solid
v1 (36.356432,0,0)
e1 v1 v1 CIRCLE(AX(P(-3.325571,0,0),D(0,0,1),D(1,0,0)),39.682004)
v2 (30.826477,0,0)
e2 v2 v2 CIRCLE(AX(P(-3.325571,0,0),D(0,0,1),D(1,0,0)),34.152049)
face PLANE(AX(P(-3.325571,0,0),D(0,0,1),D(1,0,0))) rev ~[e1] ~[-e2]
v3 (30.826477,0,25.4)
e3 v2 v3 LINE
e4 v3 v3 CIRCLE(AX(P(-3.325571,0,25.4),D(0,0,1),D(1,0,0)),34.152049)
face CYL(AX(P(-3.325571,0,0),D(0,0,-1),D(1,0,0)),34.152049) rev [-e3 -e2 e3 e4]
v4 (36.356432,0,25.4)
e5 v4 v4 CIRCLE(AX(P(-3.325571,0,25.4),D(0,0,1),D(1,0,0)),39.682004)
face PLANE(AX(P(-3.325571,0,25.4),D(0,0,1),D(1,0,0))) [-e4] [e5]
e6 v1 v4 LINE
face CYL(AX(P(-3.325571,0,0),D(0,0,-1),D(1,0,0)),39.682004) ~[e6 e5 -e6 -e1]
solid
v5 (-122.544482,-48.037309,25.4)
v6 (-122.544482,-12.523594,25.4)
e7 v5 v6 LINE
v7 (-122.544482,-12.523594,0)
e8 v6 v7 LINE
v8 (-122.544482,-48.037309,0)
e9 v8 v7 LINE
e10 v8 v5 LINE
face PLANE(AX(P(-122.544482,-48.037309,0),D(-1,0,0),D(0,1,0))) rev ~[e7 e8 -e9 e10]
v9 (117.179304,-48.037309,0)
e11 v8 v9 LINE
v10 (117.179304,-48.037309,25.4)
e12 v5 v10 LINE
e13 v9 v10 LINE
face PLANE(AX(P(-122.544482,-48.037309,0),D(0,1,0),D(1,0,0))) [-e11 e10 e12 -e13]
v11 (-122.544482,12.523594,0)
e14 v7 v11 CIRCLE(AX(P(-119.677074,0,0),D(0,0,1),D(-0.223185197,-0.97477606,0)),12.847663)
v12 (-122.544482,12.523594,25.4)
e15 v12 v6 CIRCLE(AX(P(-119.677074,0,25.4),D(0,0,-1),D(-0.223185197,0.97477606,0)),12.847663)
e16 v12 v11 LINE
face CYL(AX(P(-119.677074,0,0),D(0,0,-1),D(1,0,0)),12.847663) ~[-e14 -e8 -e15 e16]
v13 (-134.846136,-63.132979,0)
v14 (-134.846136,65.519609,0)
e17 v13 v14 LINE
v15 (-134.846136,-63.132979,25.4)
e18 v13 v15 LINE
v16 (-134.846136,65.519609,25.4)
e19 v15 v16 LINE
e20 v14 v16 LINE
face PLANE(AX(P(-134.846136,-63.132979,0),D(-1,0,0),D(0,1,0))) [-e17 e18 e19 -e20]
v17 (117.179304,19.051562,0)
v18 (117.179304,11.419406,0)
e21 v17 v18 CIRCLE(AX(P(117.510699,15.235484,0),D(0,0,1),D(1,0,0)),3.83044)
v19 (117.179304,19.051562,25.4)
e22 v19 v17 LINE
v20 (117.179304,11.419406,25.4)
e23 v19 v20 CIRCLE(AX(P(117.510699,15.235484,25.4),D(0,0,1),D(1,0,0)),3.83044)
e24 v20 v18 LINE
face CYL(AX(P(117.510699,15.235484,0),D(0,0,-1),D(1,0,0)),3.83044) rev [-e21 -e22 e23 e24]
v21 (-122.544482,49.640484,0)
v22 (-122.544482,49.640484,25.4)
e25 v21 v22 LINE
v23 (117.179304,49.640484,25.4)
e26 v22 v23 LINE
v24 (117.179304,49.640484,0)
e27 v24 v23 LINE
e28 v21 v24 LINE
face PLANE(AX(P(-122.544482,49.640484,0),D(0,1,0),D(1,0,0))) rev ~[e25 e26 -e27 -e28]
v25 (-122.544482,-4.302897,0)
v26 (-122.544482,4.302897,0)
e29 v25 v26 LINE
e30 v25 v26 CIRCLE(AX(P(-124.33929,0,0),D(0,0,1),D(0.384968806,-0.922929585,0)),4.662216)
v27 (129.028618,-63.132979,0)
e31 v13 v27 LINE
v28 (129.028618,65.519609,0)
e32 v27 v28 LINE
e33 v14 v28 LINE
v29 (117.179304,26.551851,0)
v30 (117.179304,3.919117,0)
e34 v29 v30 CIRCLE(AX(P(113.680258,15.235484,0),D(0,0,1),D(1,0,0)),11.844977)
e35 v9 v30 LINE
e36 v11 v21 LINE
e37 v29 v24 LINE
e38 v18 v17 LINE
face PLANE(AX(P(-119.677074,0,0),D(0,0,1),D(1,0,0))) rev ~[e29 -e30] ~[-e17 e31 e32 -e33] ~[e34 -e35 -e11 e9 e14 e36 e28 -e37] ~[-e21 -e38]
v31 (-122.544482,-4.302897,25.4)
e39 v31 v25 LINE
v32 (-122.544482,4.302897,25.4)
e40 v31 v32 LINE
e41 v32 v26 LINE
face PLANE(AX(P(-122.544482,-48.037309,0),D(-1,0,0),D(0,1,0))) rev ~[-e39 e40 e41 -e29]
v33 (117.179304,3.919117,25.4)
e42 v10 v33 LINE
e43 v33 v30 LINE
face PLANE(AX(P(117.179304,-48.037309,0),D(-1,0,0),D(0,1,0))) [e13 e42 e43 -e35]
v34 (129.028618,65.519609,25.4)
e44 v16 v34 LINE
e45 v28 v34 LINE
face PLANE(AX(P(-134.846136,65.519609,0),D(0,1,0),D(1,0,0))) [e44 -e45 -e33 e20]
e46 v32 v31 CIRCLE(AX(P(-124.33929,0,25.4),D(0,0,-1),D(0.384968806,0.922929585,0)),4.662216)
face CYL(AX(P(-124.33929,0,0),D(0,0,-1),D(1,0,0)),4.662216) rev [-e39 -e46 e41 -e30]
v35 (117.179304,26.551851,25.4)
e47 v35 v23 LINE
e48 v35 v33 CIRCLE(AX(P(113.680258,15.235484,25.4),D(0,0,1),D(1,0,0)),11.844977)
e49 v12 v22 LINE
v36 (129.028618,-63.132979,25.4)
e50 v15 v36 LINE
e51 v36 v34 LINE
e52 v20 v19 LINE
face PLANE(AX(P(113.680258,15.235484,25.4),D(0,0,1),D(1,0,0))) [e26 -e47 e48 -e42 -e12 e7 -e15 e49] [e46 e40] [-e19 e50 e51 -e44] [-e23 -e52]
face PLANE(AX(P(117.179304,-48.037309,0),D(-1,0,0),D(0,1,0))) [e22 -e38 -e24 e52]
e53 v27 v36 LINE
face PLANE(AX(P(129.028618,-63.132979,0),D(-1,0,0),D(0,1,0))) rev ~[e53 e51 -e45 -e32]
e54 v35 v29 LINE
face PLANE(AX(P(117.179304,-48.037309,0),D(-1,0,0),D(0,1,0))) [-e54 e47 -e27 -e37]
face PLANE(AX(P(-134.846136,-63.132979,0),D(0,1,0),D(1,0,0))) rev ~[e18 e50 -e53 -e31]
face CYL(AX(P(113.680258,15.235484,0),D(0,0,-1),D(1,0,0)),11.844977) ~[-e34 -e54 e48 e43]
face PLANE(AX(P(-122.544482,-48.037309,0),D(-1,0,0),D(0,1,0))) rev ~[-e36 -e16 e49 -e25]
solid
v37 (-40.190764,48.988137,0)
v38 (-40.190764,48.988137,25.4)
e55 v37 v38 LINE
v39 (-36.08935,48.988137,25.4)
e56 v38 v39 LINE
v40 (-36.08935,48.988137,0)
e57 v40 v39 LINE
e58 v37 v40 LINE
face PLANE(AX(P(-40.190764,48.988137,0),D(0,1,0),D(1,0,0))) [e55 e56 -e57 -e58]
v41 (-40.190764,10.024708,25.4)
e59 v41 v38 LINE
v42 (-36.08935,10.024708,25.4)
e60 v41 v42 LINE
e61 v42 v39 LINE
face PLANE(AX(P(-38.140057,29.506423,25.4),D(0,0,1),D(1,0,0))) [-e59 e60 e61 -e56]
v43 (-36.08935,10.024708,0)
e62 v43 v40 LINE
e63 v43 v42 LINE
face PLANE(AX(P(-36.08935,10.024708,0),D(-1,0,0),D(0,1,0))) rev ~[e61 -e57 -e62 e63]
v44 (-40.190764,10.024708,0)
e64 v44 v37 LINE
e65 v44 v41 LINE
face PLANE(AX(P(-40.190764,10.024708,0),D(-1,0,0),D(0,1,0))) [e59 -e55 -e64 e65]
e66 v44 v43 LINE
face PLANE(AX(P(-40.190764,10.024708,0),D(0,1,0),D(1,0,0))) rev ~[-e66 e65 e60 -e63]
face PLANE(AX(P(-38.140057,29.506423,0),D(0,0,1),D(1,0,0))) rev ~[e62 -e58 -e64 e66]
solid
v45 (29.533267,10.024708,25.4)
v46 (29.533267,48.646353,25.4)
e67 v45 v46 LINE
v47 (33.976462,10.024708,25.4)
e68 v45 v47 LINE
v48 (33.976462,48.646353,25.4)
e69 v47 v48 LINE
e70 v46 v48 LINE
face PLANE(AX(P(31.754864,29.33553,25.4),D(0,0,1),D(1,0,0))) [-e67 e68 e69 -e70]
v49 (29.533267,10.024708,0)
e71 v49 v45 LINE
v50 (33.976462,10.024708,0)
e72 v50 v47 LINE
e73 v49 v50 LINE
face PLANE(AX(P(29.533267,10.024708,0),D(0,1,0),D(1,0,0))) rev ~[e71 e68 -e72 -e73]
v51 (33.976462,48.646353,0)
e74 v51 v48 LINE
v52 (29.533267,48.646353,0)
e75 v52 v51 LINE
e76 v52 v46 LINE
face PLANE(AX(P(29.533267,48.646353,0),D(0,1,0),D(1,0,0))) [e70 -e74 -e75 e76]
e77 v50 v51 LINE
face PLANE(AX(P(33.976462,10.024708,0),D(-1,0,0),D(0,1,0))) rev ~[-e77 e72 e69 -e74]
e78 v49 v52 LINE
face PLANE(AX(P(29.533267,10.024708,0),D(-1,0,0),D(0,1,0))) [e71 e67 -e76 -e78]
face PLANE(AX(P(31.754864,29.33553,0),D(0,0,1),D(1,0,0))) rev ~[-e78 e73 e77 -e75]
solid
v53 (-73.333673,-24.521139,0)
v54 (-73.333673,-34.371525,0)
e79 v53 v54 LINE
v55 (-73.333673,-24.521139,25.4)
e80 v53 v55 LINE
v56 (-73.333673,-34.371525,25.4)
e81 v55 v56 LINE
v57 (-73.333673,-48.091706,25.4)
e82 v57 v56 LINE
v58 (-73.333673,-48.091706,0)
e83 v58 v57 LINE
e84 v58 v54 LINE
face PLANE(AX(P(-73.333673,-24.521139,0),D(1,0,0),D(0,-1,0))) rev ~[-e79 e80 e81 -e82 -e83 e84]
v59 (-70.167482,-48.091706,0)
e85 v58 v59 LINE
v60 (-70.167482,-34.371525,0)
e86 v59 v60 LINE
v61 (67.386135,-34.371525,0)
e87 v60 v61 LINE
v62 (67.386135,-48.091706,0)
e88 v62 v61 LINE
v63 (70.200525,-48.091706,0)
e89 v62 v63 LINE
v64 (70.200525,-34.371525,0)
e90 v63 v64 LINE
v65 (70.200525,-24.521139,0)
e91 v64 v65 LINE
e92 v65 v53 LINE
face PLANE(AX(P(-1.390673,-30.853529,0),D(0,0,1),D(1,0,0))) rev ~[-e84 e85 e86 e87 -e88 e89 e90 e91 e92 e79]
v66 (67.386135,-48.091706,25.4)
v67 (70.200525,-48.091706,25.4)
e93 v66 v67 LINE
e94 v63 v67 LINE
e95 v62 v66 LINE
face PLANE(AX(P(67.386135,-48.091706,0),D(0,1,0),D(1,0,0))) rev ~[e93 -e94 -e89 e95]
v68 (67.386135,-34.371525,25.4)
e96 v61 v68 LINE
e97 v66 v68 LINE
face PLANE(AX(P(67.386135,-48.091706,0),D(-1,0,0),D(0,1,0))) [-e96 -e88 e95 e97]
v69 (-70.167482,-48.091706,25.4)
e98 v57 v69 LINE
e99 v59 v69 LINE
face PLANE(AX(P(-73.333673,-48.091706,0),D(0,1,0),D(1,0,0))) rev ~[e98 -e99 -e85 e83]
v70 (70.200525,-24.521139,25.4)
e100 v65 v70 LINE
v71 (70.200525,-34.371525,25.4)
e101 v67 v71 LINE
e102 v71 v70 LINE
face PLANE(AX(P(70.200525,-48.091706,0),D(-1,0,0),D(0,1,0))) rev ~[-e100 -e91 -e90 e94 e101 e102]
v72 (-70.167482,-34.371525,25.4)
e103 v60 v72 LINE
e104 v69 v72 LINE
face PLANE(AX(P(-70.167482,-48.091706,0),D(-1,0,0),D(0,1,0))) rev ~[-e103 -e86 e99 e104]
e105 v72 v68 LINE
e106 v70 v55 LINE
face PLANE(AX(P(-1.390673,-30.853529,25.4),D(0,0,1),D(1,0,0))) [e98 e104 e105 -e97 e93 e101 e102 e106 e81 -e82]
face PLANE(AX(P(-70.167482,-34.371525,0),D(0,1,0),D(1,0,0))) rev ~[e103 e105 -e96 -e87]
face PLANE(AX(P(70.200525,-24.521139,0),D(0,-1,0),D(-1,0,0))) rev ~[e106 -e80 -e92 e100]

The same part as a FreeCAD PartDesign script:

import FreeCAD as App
import Part
import Sketcher

V = App.Vector
Q = App.Units.Quantity


def add_polygon(sketch, points):
    """Adds a closed chain of lines whose ends are joined by coincident constraints."""
    first, n = sketch.GeometryCount, len(points)
    for a, b in zip(points, points[1:] + points[:1]):
        sketch.addGeometry(Part.LineSegment(App.Vector(*a, 0), App.Vector(*b, 0)), False)
    for i in range(n):
        sketch.addConstraint(Sketcher.Constraint("Coincident", first + i, 2, first + (i + 1) % n, 1))

doc = App.newDocument("Part")
body = doc.addObject("PartDesign::Body", "Body")

sketch1 = doc.addObject("Sketcher::SketchObject", "Sketch")
body.addObject(sketch1)
sketch1.AttachmentSupport = (doc.XY_Plane, [""])
sketch1.MapMode = "FlatFace"
add_polygon(sketch1, [(-134.846136, 65.519609), (-134.846136, -63.132979), (129.028618, -63.132979), (129.028618, 65.519609)])
add_polygon(sketch1, [(117.179304, -48.037309), (-122.544482, -48.037309), (-122.544482, 49.640484), (117.179304, 49.640484)])
sketch1.addConstraint(Sketcher.Constraint("Vertical", 0))
sketch1.addConstraint(Sketcher.Constraint("Horizontal", 1))
sketch1.addConstraint(Sketcher.Constraint("Vertical", 2))
sketch1.addConstraint(Sketcher.Constraint("Horizontal", 3))
sketch1.addConstraint(Sketcher.Constraint("Horizontal", 4))
sketch1.addConstraint(Sketcher.Constraint("Vertical", 5))
sketch1.addConstraint(Sketcher.Constraint("Horizontal", 6))
sketch1.addConstraint(Sketcher.Constraint("Vertical", 7))
sketch1.addConstraint(Sketcher.Constraint("DistanceY", 0, 2, 5, 2, Q("4.4399001 in")))
sketch1.addConstraint(Sketcher.Constraint("DistanceX", 4, 2, 1, 2, 251.573101))
sketch1.addConstraint(Sketcher.Constraint("DistanceX", 1, 1, 1, 2, 263.874754))
sketch1.addConstraint(Sketcher.Constraint("DistanceX", 4, 2, 4, 1, 239.723787))
sketch1.addConstraint(Sketcher.Constraint("DistanceY", 0, 2, 0, 1, 128.652588))
sketch1.addConstraint(Sketcher.Constraint("DistanceY", 5, 1, 5, 2, 97.677793))
sketch1.addConstraint(Sketcher.Constraint("DistanceY", 0, 2, -1, 1, 63.132979))
sketch1.addConstraint(Sketcher.Constraint("DistanceX", -1, 1, 1, 2, 129.028618))
pad1 = doc.addObject("PartDesign::Pad", "Pad")
body.addObject(pad1)
pad1.Profile = sketch1
pad1.Length = Q("1 in")

sketch2 = doc.addObject("Sketcher::SketchObject", "Sketch001")
body.addObject(sketch2)
sketch2.AttachmentSupport = (doc.XY_Plane, [""])
sketch2.MapMode = "FlatFace"
sketch2.addGeometry(Part.Circle(V(-119.677074, 0, 0), V(0, 0, 1), 12.847663), False)
sketch2.addGeometry(Part.Circle(V(-124.33929, 0, 0), V(0, 0, 1), 4.662216), False)
sketch2.addConstraint(Sketcher.Constraint("PointOnObject", 0, 3, -1))
sketch2.addConstraint(Sketcher.Constraint("PointOnObject", 1, 3, -1))
sketch2.addConstraint(Sketcher.Constraint("Diameter", 1, 9.324431))
sketch2.addConstraint(Sketcher.Constraint("Diameter", 0, 25.695325))
sketch2.addConstraint(Sketcher.Constraint("DistanceX", 1, 3, -1, 1, 124.33929))
sketch2.addConstraint(Sketcher.Constraint("DistanceX", 0, 3, -1, 1, 119.677074))
pad2 = doc.addObject("PartDesign::Pad", "Pad001")
body.addObject(pad2)
pad2.Profile = sketch2
pad2.Length = Q("1 in")

sketch3 = doc.addObject("Sketcher::SketchObject", "Sketch002")
body.addObject(sketch3)
sketch3.AttachmentSupport = (doc.XY_Plane, [""])
sketch3.MapMode = "FlatFace"
sketch3.addGeometry(Part.Circle(V(113.680258, 15.235484, 0), V(0, 0, 1), 11.844977), False)
sketch3.addGeometry(Part.Circle(V(117.510699, 15.235484, 0), V(0, 0, 1), 3.83044), False)
sketch3.addConstraint(Sketcher.Constraint("Horizontal", 0, 3, 1, 3))
sketch3.addConstraint(Sketcher.Constraint("Diameter", 1, 7.660881))
sketch3.addConstraint(Sketcher.Constraint("Diameter", 0, 23.689955))
sketch3.addConstraint(Sketcher.Constraint("DistanceX", -1, 1, 1, 3, 117.510699))
sketch3.addConstraint(Sketcher.Constraint("DistanceX", -1, 1, 0, 3, 113.680258))
sketch3.addConstraint(Sketcher.Constraint("DistanceY", -1, 1, 0, 3, 15.235484))
pad3 = doc.addObject("PartDesign::Pad", "Pad002")
body.addObject(pad3)
pad3.Profile = sketch3
pad3.Length = Q("1 in")
body2 = doc.addObject("PartDesign::Body", "Body001")

sketch4 = doc.addObject("Sketcher::SketchObject", "Sketch003")
body2.addObject(sketch4)
sketch4.AttachmentSupport = (doc.getObject("XY_Plane001"), [""])
sketch4.MapMode = "FlatFace"
add_polygon(sketch4, [(-40.190764, 48.988137), (-40.190764, 10.024708), (-36.08935, 10.024708), (-36.08935, 48.988137)])
sketch4.addConstraint(Sketcher.Constraint("Vertical", 0))
sketch4.addConstraint(Sketcher.Constraint("Horizontal", 1))
sketch4.addConstraint(Sketcher.Constraint("Vertical", 2))
sketch4.addConstraint(Sketcher.Constraint("Horizontal", 3))
sketch4.addConstraint(Sketcher.Constraint("DistanceY", 0, 2, 0, 1, 38.96343))
sketch4.addConstraint(Sketcher.Constraint("DistanceX", 1, 1, 1, 2, 4.101414))
sketch4.addConstraint(Sketcher.Constraint("DistanceX", 1, 2, -1, 1, 36.08935))
sketch4.addConstraint(Sketcher.Constraint("DistanceY", -1, 1, 0, 2, 10.024708))
pad4 = doc.addObject("PartDesign::Pad", "Pad003")
body2.addObject(pad4)
pad4.Profile = sketch4
pad4.Length = Q("1 in")
body3 = doc.addObject("PartDesign::Body", "Body002")

sketch5 = doc.addObject("Sketcher::SketchObject", "Sketch004")
body3.addObject(sketch5)
sketch5.AttachmentSupport = (doc.getObject("XY_Plane002"), [""])
sketch5.MapMode = "FlatFace"
add_polygon(sketch5, [(29.533267, 48.646353), (29.533267, 10.024708), (33.976462, 10.024708), (33.976462, 48.646353)])
sketch5.addConstraint(Sketcher.Constraint("Vertical", 0))
sketch5.addConstraint(Sketcher.Constraint("Horizontal", 1))
sketch5.addConstraint(Sketcher.Constraint("Vertical", 2))
sketch5.addConstraint(Sketcher.Constraint("Horizontal", 3))
sketch5.addConstraint(Sketcher.Constraint("DistanceX", 1, 1, 1, 2, 4.443195))
sketch5.addConstraint(Sketcher.Constraint("DistanceY", 0, 2, 0, 1, 38.621645))
sketch5.addConstraint(Sketcher.Constraint("DistanceX", -1, 1, 1, 2, 33.976462))
sketch5.addConstraint(Sketcher.Constraint("DistanceY", -1, 1, 0, 2, 10.024708))
pad5 = doc.addObject("PartDesign::Pad", "Pad004")
body3.addObject(pad5)
pad5.Profile = sketch5
pad5.Length = Q("1 in")
body4 = doc.addObject("PartDesign::Body", "Body003")

sketch6 = doc.addObject("Sketcher::SketchObject", "Sketch005")
body4.addObject(sketch6)
sketch6.AttachmentSupport = (doc.getObject("XY_Plane003"), [""])
sketch6.MapMode = "FlatFace"
sketch6.addGeometry(Part.Circle(V(-3.325571, 0, 0), V(0, 0, 1), 39.682004), False)
sketch6.addGeometry(Part.Circle(V(-3.325571, 0, 0), V(0, 0, 1), 34.152049), False)
sketch6.addConstraint(Sketcher.Constraint("Coincident", 1, 3, 0, 3))
sketch6.addConstraint(Sketcher.Constraint("PointOnObject", 0, 3, -1))
sketch6.addConstraint(Sketcher.Constraint("Diameter", 0, 79.364007))
sketch6.addConstraint(Sketcher.Constraint("Diameter", 1, 68.304097))
sketch6.addConstraint(Sketcher.Constraint("DistanceX", 0, 3, -1, 1, 3.325571))
pad6 = doc.addObject("PartDesign::Pad", "Pad005")
body4.addObject(pad6)
pad6.Profile = sketch6
pad6.Length = Q("1 in")
body5 = doc.addObject("PartDesign::Body", "Body004")

sketch7 = doc.addObject("Sketcher::SketchObject", "Sketch006")
body5.addObject(sketch7)
sketch7.AttachmentSupport = (doc.getObject("XY_Plane004"), [""])
sketch7.MapMode = "FlatFace"
add_polygon(sketch7, [(-70.167482, -34.371525), (67.386135, -34.371525), (67.386135, -48.091706), (70.200525, -48.091706), (70.200525, -34.371525), (70.200525, -24.521139), (-73.333673, -24.521139), (-73.333673, -34.371525), (-73.333673, -48.091706), (-70.167482, -48.091706)])
sketch7.addConstraint(Sketcher.Constraint("Horizontal", 0))
sketch7.addConstraint(Sketcher.Constraint("Vertical", 1))
sketch7.addConstraint(Sketcher.Constraint("Horizontal", 2))
sketch7.addConstraint(Sketcher.Constraint("Vertical", 3))
sketch7.addConstraint(Sketcher.Constraint("Vertical", 4))
sketch7.addConstraint(Sketcher.Constraint("Horizontal", 5))
sketch7.addConstraint(Sketcher.Constraint("Vertical", 6))
sketch7.addConstraint(Sketcher.Constraint("Vertical", 7))
sketch7.addConstraint(Sketcher.Constraint("Horizontal", 8))
sketch7.addConstraint(Sketcher.Constraint("Vertical", 9))
sketch7.addConstraint(Sketcher.Constraint("Horizontal", 0, 2, 3, 2))
sketch7.addConstraint(Sketcher.Constraint("Horizontal", 3, 2, 6, 2))
sketch7.addConstraint(Sketcher.Constraint("Horizontal", 2, 2, 7, 2))
sketch7.addConstraint(Sketcher.Constraint("DistanceX", 5, 2, 5, 1, 143.534198))
sketch7.addConstraint(Sketcher.Constraint("DistanceX", 2, 1, 2, 2, 2.81439))
sketch7.addConstraint(Sketcher.Constraint("DistanceX", 8, 1, 8, 2, 3.166191))
sketch7.addConstraint(Sketcher.Constraint("DistanceY", 1, 2, 1, 1, 13.720181))
sketch7.addConstraint(Sketcher.Constraint("DistanceY", 4, 1, 4, 2, 9.850387))
sketch7.addConstraint(Sketcher.Constraint("DistanceY", 4, 2, -1, 1, 24.521139))
sketch7.addConstraint(Sketcher.Constraint("DistanceX", 8, 2, -1, 1, 70.167482))
pad7 = doc.addObject("PartDesign::Pad", "Pad006")
body5.addObject(pad7)
pad7.Profile = sketch7
pad7.Length = Q("1 in")

doc.recompute()
